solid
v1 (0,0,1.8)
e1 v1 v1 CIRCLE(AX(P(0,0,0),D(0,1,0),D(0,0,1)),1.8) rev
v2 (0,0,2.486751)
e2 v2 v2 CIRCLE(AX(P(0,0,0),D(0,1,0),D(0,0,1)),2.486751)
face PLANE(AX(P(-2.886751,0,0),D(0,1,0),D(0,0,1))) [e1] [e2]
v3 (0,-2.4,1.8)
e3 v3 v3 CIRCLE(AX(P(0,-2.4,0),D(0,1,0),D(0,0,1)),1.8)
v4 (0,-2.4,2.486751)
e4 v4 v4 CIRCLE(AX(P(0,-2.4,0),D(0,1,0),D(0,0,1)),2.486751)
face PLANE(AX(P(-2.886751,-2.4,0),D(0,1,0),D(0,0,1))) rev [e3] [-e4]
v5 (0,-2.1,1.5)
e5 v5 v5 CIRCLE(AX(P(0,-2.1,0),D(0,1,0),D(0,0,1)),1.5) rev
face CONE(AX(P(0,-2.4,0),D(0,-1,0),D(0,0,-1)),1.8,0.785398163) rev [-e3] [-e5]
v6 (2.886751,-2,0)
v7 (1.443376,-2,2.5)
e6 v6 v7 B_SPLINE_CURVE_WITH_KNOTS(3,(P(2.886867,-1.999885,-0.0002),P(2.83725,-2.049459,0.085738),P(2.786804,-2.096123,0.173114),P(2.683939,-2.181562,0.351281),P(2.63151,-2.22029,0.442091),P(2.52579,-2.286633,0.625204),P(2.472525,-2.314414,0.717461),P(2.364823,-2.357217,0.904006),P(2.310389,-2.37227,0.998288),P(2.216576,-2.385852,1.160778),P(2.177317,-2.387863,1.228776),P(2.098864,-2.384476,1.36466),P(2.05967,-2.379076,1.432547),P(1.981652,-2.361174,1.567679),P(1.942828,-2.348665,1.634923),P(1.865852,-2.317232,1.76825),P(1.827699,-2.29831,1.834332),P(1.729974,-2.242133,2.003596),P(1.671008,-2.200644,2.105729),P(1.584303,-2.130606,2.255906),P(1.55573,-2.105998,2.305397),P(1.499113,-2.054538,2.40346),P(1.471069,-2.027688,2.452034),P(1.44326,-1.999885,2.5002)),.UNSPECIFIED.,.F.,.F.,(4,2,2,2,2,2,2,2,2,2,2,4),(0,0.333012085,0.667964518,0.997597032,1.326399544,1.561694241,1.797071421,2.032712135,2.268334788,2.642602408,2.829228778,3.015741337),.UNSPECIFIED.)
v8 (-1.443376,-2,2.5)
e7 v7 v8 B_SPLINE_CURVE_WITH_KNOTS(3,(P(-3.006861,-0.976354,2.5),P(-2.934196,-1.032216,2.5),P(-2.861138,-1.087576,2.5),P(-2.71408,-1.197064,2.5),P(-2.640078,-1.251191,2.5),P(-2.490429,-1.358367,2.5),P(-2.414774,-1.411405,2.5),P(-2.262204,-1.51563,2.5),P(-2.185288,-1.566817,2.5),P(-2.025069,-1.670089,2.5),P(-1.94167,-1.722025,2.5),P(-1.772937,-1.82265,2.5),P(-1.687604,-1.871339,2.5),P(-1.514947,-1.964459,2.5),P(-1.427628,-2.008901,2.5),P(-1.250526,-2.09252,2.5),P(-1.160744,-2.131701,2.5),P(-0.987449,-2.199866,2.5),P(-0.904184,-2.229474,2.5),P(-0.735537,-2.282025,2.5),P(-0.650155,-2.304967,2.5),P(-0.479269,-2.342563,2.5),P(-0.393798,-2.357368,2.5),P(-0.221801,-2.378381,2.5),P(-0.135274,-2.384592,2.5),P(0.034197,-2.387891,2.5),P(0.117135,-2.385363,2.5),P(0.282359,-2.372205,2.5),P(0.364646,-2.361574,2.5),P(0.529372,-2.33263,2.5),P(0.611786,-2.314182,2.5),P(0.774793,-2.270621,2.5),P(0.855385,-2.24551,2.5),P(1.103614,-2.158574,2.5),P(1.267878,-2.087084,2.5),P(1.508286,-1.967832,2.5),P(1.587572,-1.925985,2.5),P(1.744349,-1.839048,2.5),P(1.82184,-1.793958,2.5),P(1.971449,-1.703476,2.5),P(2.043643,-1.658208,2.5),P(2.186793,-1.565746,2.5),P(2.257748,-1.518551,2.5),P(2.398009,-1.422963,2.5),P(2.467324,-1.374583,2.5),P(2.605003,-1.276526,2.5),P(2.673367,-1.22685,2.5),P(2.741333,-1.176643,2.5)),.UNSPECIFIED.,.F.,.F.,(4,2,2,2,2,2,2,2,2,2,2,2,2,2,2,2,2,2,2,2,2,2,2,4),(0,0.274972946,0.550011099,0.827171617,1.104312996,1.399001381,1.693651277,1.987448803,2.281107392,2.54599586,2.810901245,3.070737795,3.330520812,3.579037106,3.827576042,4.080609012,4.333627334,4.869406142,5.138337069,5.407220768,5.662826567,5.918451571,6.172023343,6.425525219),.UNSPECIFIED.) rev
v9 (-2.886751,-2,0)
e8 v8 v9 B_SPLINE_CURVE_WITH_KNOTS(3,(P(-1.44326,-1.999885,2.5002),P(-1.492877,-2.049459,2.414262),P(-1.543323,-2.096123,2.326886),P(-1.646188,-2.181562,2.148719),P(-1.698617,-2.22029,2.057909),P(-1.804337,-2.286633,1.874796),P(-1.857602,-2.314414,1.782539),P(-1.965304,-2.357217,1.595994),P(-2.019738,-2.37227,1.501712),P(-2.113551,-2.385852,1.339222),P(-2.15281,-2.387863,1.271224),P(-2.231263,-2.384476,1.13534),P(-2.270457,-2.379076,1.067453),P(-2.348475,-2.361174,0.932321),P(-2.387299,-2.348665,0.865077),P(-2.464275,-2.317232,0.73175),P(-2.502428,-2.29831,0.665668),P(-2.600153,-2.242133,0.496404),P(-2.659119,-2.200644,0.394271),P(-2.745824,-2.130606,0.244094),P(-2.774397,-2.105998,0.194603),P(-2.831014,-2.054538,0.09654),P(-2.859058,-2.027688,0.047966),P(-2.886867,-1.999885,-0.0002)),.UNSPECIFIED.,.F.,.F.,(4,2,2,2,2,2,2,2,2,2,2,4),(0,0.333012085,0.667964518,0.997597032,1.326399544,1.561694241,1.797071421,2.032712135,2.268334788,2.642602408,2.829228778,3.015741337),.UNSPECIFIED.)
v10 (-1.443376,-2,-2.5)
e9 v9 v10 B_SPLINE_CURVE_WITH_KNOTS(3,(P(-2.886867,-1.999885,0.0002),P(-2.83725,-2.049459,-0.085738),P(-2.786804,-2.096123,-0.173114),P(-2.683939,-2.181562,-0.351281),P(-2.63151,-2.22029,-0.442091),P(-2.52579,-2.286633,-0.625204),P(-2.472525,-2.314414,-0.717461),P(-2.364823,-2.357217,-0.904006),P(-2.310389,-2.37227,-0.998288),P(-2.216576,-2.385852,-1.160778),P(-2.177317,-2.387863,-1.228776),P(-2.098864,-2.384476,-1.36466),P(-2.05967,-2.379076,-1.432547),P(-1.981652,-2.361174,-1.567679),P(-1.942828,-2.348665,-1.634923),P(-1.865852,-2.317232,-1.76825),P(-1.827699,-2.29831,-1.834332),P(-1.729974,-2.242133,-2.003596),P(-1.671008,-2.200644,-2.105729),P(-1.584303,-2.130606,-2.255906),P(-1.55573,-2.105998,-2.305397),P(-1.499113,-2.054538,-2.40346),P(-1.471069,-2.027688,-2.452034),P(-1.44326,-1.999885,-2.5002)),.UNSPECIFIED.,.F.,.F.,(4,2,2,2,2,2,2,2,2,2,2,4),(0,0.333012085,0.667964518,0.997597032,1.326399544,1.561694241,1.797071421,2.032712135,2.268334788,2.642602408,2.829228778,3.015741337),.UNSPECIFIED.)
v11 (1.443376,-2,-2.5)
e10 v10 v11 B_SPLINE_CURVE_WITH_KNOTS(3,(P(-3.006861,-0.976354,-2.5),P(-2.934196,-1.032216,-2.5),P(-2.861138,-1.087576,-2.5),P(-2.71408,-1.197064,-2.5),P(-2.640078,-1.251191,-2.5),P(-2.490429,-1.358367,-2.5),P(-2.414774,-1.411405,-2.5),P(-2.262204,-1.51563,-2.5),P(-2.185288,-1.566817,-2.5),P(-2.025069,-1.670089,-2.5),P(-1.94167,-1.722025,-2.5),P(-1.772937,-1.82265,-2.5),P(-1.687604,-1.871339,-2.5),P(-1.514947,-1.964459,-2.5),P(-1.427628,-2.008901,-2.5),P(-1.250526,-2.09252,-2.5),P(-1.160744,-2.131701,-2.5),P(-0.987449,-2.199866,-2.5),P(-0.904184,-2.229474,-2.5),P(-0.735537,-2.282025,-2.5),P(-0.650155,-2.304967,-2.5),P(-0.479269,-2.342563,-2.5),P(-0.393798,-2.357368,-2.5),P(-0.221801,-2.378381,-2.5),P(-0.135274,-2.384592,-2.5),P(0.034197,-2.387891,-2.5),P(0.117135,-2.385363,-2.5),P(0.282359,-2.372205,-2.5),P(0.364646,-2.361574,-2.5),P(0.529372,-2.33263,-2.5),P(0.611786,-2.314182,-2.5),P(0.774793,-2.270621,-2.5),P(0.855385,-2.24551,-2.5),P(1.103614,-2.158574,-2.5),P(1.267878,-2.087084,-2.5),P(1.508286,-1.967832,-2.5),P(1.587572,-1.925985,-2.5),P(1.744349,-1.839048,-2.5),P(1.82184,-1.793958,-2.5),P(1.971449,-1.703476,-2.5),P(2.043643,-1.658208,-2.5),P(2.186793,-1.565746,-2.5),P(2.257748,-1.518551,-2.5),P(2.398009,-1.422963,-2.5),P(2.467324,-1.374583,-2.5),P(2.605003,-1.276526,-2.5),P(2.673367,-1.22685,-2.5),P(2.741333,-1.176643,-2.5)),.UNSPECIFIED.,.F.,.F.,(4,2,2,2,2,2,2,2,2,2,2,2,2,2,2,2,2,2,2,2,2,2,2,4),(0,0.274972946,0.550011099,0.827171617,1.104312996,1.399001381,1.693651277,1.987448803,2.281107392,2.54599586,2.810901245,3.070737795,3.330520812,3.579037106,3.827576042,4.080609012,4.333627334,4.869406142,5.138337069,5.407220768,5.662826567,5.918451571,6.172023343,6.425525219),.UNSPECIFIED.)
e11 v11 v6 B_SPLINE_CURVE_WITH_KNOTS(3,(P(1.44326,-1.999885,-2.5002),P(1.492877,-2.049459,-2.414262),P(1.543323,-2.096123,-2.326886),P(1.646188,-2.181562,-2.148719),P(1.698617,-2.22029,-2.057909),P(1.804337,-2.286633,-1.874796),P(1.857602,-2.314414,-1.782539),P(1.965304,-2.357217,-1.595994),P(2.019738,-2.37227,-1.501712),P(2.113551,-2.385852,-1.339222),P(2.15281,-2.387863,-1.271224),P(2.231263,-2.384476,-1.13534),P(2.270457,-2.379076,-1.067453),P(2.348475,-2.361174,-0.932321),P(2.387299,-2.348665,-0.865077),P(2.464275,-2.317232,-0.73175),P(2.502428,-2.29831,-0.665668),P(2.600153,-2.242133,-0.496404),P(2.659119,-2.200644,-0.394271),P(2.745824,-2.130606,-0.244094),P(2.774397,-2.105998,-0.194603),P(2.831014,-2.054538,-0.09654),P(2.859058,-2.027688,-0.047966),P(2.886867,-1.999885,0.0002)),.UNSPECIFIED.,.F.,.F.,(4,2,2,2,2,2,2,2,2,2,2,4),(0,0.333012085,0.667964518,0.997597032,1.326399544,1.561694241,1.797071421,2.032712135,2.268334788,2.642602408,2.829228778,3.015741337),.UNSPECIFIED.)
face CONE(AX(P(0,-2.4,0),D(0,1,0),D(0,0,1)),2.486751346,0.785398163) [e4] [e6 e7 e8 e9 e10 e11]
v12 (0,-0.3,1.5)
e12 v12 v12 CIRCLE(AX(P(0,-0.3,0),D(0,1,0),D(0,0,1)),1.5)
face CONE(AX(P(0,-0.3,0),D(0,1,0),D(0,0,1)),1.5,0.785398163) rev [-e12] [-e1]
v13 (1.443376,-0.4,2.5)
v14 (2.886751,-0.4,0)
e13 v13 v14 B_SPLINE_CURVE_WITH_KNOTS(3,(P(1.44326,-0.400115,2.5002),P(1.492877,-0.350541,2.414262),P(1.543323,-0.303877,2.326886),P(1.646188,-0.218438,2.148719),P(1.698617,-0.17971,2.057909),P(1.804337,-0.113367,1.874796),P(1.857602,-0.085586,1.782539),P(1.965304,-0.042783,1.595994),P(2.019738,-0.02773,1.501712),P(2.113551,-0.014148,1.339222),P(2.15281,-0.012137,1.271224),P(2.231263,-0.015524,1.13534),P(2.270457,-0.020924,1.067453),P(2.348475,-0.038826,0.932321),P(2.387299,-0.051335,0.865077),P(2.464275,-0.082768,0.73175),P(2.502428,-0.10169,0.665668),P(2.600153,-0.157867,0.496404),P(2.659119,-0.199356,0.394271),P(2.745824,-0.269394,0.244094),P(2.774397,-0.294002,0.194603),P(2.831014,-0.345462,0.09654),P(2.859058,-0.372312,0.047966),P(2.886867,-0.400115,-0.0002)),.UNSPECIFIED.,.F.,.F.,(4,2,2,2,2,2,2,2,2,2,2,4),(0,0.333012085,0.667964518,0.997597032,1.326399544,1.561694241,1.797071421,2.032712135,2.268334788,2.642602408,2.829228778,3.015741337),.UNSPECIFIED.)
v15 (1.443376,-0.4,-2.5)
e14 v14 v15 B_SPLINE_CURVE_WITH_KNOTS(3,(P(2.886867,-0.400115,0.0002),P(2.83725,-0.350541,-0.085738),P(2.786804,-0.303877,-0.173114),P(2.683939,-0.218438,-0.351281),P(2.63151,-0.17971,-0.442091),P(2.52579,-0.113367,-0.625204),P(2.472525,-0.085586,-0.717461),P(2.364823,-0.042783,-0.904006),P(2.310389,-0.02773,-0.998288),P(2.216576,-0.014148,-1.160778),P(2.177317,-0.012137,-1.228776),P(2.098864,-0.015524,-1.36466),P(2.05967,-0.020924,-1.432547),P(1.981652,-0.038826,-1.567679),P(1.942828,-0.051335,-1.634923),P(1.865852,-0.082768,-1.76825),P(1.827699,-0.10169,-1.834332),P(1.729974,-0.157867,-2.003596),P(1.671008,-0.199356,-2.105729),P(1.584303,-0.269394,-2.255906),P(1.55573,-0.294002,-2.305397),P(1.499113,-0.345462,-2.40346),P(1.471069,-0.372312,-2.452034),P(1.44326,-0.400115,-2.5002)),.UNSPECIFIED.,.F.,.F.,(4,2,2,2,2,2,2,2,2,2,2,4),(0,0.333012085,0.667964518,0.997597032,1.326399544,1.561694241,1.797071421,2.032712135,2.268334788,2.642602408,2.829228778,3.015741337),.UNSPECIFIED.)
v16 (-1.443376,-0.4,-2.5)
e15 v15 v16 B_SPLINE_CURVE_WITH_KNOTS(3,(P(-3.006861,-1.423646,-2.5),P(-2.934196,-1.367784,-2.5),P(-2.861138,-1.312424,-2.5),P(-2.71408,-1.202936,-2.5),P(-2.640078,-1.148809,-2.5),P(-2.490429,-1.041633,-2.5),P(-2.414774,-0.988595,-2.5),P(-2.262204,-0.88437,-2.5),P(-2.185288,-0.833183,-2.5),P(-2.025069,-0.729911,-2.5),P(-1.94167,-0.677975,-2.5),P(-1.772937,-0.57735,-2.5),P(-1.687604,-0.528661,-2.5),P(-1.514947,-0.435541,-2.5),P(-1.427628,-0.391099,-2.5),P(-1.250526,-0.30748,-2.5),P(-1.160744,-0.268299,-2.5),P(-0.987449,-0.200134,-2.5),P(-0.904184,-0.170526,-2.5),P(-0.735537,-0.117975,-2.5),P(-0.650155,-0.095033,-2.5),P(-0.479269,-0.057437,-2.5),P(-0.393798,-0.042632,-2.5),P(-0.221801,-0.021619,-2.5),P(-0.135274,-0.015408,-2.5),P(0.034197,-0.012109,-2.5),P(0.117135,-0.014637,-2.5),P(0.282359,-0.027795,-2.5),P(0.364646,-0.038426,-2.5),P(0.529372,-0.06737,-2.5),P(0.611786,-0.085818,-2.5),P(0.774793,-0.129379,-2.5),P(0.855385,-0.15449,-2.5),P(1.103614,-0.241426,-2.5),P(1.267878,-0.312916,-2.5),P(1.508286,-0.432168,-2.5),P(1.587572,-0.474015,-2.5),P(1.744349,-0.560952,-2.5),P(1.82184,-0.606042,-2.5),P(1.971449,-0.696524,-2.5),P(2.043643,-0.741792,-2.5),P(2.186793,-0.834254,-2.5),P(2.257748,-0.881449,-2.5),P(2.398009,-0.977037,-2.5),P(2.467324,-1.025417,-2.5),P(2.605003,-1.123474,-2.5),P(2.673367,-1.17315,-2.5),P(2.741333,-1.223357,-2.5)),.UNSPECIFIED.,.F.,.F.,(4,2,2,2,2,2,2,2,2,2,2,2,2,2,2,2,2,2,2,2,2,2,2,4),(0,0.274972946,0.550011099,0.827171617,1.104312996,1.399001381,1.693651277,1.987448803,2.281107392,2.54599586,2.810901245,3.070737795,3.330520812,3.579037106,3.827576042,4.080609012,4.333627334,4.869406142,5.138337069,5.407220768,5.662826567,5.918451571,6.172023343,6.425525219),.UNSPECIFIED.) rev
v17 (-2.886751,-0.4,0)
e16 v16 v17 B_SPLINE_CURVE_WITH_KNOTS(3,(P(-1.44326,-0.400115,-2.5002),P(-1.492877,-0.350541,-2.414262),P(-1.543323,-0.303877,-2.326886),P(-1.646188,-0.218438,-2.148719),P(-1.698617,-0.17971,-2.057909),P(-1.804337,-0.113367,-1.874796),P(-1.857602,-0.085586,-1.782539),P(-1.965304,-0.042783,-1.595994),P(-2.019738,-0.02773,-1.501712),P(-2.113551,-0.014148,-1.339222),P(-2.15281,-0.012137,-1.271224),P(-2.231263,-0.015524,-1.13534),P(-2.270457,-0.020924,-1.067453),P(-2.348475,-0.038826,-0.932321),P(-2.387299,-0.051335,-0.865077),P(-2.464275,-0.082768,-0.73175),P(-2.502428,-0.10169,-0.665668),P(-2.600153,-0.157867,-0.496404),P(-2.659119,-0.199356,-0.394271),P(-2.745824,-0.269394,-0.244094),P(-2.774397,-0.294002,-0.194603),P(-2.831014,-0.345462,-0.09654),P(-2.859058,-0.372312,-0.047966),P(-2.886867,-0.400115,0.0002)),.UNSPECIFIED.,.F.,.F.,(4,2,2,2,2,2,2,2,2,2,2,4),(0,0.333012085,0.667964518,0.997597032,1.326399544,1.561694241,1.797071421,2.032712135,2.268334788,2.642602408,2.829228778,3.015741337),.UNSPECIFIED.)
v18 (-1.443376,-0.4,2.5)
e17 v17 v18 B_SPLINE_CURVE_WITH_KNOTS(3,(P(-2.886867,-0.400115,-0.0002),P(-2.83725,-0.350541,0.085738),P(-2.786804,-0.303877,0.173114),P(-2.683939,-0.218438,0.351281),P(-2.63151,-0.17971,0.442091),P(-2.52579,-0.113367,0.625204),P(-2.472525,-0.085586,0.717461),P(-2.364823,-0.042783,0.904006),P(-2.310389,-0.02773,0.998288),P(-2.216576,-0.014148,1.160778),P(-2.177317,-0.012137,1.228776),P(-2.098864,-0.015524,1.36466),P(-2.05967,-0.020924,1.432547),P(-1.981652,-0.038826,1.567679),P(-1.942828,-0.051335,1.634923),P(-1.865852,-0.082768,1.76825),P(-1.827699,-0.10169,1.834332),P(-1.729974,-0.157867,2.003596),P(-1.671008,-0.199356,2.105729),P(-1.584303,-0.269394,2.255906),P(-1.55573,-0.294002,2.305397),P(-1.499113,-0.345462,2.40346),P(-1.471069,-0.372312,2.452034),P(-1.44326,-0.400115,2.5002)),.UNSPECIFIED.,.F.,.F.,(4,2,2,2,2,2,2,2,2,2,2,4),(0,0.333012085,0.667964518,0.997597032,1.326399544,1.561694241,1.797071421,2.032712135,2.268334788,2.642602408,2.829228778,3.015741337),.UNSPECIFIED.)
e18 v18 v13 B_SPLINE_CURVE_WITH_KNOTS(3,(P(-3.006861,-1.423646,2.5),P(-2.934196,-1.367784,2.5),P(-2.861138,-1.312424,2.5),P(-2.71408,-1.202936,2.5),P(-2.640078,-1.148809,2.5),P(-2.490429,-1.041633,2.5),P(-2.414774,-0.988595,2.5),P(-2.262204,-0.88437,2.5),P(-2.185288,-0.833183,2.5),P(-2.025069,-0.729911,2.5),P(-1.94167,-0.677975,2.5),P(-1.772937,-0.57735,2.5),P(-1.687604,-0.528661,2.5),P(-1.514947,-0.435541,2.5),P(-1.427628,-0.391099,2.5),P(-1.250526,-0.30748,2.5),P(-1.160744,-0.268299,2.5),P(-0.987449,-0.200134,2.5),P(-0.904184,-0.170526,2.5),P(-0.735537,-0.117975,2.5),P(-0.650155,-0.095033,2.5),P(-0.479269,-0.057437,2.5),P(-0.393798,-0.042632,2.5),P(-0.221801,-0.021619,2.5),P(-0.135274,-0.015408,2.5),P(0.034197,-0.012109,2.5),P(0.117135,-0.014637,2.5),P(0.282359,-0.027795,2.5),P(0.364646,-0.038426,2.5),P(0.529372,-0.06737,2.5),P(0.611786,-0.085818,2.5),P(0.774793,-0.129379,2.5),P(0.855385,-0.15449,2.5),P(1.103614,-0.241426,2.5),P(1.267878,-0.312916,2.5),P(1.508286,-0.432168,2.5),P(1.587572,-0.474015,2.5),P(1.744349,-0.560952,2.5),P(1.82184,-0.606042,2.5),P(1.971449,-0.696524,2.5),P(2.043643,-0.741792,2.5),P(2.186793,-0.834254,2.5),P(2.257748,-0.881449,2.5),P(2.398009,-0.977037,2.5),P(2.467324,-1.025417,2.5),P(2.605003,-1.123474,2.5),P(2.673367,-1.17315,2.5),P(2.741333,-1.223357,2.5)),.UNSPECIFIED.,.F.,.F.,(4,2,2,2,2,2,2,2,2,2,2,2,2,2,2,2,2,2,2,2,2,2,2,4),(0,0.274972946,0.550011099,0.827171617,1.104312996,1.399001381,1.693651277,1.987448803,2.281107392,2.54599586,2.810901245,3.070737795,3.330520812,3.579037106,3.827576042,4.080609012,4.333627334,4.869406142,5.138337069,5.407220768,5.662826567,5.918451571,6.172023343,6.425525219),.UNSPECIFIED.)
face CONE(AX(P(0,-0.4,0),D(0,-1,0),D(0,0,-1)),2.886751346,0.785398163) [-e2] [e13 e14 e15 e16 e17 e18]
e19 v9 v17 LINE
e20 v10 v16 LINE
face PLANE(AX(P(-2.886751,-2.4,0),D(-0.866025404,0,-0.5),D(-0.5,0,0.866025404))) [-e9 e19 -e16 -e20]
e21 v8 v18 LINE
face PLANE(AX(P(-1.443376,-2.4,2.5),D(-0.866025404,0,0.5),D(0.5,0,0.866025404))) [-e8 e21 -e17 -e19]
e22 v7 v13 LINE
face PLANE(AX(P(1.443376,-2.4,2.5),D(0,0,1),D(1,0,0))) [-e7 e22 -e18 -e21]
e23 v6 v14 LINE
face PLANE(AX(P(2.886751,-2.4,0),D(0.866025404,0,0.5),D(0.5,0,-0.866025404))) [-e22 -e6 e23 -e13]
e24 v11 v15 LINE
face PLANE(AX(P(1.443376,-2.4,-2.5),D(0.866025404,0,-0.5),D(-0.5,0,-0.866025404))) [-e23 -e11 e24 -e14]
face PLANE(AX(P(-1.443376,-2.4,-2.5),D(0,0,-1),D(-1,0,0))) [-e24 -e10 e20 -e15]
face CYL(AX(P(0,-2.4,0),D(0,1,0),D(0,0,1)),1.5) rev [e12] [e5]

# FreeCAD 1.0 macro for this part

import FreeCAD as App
import Part
import Sketcher

V = App.Vector
Q = App.Units.Quantity


def edges_at(feature, points):
    """Names of the edges that pass closest to the given points."""
    edges = feature.Shape.Edges
    near = lambda p: min(range(len(edges)), key=lambda i: edges[i].distToShape(Part.Vertex(*p))[0])
    return sorted({f"Edge{near(p) + 1}" for p in points})


def add_polygon(sketch, points):
    """Adds a closed chain of lines whose ends are joined by coincident constraints."""
    first, n = sketch.GeometryCount, len(points)
    for a, b in zip(points, points[1:] + points[:1]):
        sketch.addGeometry(Part.LineSegment(App.Vector(*a, 0), App.Vector(*b, 0)), False)
    for i in range(n):
        sketch.addConstraint(Sketcher.Constraint("Coincident", first + i, 2, first + (i + 1) % n, 1))

doc = App.newDocument("Part")
body = doc.addObject("PartDesign::Body", "Body")

# Sketch on XZ plane
sketch1 = body.newObject("Sketcher::SketchObject", "Sketch")
sketch1.AttachmentSupport = (doc.getObject("XZ_Plane"), [""])
sketch1.MapMode = "FlatFace"
add_polygon(sketch1, [(1.4, -2.5), (-1.4, -2.5), (-2.9, 0), (-1.4, 2.5), (1.4, 2.5), (2.9, 0)])  # lines 0-5
sketch1.addConstraint([
    Sketcher.Constraint("Horizontal", 0),
    Sketcher.Constraint("Horizontal", 3),
    Sketcher.Constraint("Symmetric", 0, 2, 3, 2, -1, 1),
    Sketcher.Constraint("Symmetric", 1, 2, 4, 2, -1, 1),
    Sketcher.Constraint("PointOnObject", 1, 2, -1),
    Sketcher.Constraint("Parallel", 2, 5),
    Sketcher.Constraint("Vertical", 0, 2, 2, 2),
    Sketcher.Constraint("Angle", 1, Q("120 deg")),
    Sketcher.Constraint("DistanceY", 0, 2, 2, 2, Q("5 mm")),
    Sketcher.Constraint("DistanceX", 0, 2, 0, 1, Q("2.886751 mm")),
])
pad1 = body.newObject("PartDesign::Pad", "Pad")
pad1.Profile = sketch1
pad1.Length = 2.4

# Sketch on XZ plane
sketch2 = body.newObject("Sketcher::SketchObject", "Sketch001")
sketch2.AttachmentSupport = (doc.getObject("XZ_Plane"), [""])
sketch2.MapMode = "FlatFace"
sketch2.addGeometry(Part.Circle(V(0, 0, 0), V(0, 0, 1), 1.5), False)
sketch2.addConstraint([
    Sketcher.Constraint("Coincident", 0, 3, -1, 1),
    Sketcher.Constraint("Diameter", 0, Q("3 mm")),
])
pocket1 = body.newObject("PartDesign::Pocket", "Pocket")
pocket1.Profile = sketch2
pocket1.Type = "ThroughAll"
pocket1.Reversed = True
doc.recompute()

chamfer = body.newObject("PartDesign::Chamfer", "Chamfer")
chamfer.Base = (pocket1, edges_at(pocket1, [(0, -2.4, -1.5), (0, 0, -1.5)]))
chamfer.Size = 0.3

# Sketch on XY plane
sketch3 = body.newObject("Sketcher::SketchObject", "Sketch002")
sketch3.AttachmentSupport = (doc.getObject("XY_Plane"), [""])
sketch3.MapMode = "FlatFace"
add_polygon(sketch3, [(-2.49, 0), (-2.89, 0), (-2.89, -0.4)])  # lines 0-2
add_polygon(sketch3, [(-2.89, -2), (-2.89, -2.4), (-2.49, -2.4)])  # lines 3-5
sketch3.addConstraint([
    Sketcher.Constraint("Horizontal", 0),
    Sketcher.Constraint("Vertical", 1),
    Sketcher.Constraint("Vertical", 3),
    Sketcher.Constraint("Horizontal", 4),
    Sketcher.Constraint("PointOnObject", 0, 2, -1),
    Sketcher.Constraint("Perpendicular", 2, 5),
    Sketcher.Constraint("Vertical", 1, 2, 3, 2),
    Sketcher.Constraint("Vertical", 2, 2, 4, 2),
    Sketcher.Constraint("Equal", 4, 1),
    Sketcher.Constraint("DistanceX", 0, 2, 0, 1, Q("0.4 mm")),
    Sketcher.Constraint("DistanceY", 5, 2, -1, 1, Q("2 mm")),
    Sketcher.Constraint("DistanceX", 0, 2, -1, 1, Q("2.886751 mm")),
])
groove = body.newObject("PartDesign::Groove", "Groove")
groove.Profile = sketch3
groove.ReferenceAxis = (sketch3, ["V_Axis"])
groove.Angle = 360

doc.recompute()
